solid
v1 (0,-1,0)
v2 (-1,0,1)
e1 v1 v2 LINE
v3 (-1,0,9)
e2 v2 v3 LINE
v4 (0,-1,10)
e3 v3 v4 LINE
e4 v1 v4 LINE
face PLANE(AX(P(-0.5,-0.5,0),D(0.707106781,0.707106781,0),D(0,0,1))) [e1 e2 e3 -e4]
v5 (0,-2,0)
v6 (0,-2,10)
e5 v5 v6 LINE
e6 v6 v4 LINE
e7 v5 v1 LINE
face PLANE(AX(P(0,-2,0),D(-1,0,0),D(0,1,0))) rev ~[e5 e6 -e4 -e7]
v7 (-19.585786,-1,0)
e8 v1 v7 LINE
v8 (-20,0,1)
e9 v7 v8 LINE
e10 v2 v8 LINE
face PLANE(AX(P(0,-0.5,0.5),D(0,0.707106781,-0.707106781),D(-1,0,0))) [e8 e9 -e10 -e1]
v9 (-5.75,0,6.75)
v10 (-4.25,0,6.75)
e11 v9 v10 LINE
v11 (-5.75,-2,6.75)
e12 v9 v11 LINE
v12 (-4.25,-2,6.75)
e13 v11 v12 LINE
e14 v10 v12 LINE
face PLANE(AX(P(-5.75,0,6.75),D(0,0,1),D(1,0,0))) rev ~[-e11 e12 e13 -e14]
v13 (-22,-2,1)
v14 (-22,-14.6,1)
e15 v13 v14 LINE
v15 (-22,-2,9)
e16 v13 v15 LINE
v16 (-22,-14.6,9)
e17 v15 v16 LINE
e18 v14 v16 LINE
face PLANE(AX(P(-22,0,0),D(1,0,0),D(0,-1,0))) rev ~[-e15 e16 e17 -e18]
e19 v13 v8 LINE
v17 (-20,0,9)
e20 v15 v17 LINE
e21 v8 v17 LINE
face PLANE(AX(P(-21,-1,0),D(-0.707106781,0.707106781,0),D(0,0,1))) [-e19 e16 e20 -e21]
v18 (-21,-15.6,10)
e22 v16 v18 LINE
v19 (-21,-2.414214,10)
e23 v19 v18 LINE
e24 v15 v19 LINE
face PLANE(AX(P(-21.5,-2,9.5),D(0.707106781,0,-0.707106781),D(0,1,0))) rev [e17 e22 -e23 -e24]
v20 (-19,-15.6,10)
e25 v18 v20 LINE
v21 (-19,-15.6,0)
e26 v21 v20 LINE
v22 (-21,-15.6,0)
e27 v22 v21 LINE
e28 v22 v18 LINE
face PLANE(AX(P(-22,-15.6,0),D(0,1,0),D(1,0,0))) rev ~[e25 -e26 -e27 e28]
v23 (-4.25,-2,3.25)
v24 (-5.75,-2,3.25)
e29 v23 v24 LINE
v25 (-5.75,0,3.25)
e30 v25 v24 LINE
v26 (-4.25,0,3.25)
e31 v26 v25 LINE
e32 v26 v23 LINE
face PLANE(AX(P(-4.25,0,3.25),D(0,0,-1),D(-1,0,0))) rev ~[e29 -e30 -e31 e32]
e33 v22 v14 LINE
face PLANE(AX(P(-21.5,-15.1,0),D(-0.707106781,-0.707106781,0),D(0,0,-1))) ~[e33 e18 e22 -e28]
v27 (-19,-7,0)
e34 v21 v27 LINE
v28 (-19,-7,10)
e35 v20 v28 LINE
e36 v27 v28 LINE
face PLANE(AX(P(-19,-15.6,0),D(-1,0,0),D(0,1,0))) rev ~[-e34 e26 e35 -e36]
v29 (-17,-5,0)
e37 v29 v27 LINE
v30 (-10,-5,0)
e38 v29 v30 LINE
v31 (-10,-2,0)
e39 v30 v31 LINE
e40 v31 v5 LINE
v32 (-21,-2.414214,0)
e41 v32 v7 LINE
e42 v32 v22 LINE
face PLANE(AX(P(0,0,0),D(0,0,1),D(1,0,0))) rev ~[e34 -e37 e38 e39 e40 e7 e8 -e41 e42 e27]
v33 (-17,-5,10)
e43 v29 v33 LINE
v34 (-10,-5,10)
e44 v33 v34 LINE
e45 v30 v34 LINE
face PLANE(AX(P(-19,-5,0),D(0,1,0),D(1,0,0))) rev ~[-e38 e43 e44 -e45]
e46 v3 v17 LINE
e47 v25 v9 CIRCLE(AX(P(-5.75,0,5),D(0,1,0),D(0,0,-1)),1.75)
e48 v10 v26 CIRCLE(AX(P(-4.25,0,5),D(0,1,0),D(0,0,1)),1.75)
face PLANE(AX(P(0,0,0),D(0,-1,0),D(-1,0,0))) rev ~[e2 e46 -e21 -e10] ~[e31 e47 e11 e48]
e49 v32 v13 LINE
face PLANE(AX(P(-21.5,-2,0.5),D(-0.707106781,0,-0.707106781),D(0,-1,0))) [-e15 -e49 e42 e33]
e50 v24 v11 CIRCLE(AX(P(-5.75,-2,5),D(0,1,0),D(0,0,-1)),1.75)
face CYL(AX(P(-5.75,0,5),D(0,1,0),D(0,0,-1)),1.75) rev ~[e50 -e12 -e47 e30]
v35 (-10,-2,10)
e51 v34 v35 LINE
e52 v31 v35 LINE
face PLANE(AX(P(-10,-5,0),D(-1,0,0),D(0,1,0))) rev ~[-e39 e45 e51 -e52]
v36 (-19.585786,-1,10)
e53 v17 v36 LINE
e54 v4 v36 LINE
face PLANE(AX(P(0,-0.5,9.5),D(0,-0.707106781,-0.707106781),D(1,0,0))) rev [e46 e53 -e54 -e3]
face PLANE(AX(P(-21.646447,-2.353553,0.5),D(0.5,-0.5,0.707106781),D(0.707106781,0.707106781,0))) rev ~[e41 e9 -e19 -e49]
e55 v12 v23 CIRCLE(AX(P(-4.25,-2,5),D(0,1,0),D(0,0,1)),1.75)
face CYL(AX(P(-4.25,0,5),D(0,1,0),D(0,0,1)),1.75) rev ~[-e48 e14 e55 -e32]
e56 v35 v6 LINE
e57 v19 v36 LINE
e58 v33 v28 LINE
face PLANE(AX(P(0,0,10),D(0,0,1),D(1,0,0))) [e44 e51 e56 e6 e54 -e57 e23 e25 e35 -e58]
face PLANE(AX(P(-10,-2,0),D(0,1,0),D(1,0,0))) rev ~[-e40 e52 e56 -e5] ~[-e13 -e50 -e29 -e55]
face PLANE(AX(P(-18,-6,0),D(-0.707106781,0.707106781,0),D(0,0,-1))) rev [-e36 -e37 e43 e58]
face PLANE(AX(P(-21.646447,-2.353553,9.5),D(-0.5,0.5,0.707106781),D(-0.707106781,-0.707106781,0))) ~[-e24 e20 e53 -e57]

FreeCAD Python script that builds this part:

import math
import FreeCAD as App
import Part
import Sketcher
from FreeCAD import Vector
Q = App.Units.Quantity


def edges_at(feature, points):
    """Names of the edges that pass closest to the given points."""
    edges = feature.Shape.Edges
    near = lambda p: min(range(len(edges)), key=lambda i: edges[i].distToShape(Part.Vertex(*p))[0])
    return sorted({f"Edge{near(p) + 1}" for p in points})


def add_polygon(sketch, points):
    """Adds a closed chain of lines whose ends are joined by coincident constraints."""
    first, n = sketch.GeometryCount, len(points)
    for a, b in zip(points, points[1:] + points[:1]):
        sketch.addGeometry(Part.LineSegment(App.Vector(*a, 0), App.Vector(*b, 0)), False)
    for i in range(n):
        sketch.addConstraint(Sketcher.Constraint("Coincident", first + i, 2, first + (i + 1) % n, 1))

doc = App.newDocument("Part")
body = doc.addObject("PartDesign::Body", "Body")

# Sketch on XY plane
sketch1 = doc.addObject("Sketcher::SketchObject", "Sketch")
body.addObject(sketch1)
sketch1.AttachmentSupport = (doc.XY_Plane, [""])
sketch1.MapMode = "FlatFace"
add_polygon(sketch1, [(0, -2), (0, 0), (-22, 0), (-22, -15.6), (-19, -15.6), (-19, -5), (-10, -5), (-10, -2)])  # lines 0-7
sketch1.addConstraint(Sketcher.Constraint("Vertical", 0))
sketch1.addConstraint(Sketcher.Constraint("Horizontal", 1))
sketch1.addConstraint(Sketcher.Constraint("Vertical", 2))
sketch1.addConstraint(Sketcher.Constraint("Horizontal", 3))
sketch1.addConstraint(Sketcher.Constraint("Vertical", 4))
sketch1.addConstraint(Sketcher.Constraint("Horizontal", 5))
sketch1.addConstraint(Sketcher.Constraint("Vertical", 6))
sketch1.addConstraint(Sketcher.Constraint("Horizontal", 7))
sketch1.addConstraint(Sketcher.Constraint("Coincident", 0, 2, -1, 1))
sketch1.addConstraint(Sketcher.Constraint("Equal", 3, 6))
sketch1.addConstraint(Sketcher.Constraint("DistanceX", 3, 1, 3, 2, Q("3 mm")))
sketch1.addConstraint(Sketcher.Constraint("DistanceX", 5, 1, 5, 2, Q("9 mm")))
sketch1.addConstraint(Sketcher.Constraint("DistanceX", 7, 1, 7, 2, Q("10 mm")))
sketch1.addConstraint(Sketcher.Constraint("DistanceY", 0, 1, 0, 2, Q("2 mm")))
sketch1.addConstraint(Sketcher.Constraint("DistanceY", 4, 1, 4, 2, Q("10.6 mm")))
pad1 = doc.addObject("PartDesign::Pad", "Pad")
body.addObject(pad1)
pad1.Profile = sketch1
pad1.Length = 10
doc.recompute()

chamfer = doc.addObject("PartDesign::Chamfer", "Chamfer")
body.addObject(chamfer)
chamfer.Base = (pad1, edges_at(pad1, [(-19, -5, 5)]))
chamfer.Size = 2

# Sketch on XZ plane
sketch2 = doc.addObject("Sketcher::SketchObject", "Sketch001")
body.addObject(sketch2)
sketch2.AttachmentSupport = (doc.XZ_Plane, [""])
sketch2.MapMode = "FlatFace"
sketch2.addGeometry(Part.ArcOfCircle(Part.Circle(Vector(-5.8, 5, 0), Vector(0, 0, 1), 1.8), math.radians(90), math.radians(270)), False)
sketch2.addGeometry(Part.LineSegment(Vector(-5.8, 6.8, 0), Vector(-4.2, 6.8, 0)), False)
sketch2.addGeometry(Part.ArcOfCircle(Part.Circle(Vector(-4.2, 5, 0), Vector(0, 0, 1), 1.8), math.radians(-90), math.radians(90)), False)
sketch2.addGeometry(Part.LineSegment(Vector(-4.2, 3.2, 0), Vector(-5.8, 3.2, 0)), False)
sketch2.addConstraint(Sketcher.Constraint("Tangent", 0, 1, 1, 1))
sketch2.addConstraint(Sketcher.Constraint("Tangent", 1, 2, 2, 2))
sketch2.addConstraint(Sketcher.Constraint("Tangent", 2, 1, 3, 1))
sketch2.addConstraint(Sketcher.Constraint("Tangent", 3, 2, 0, 2))
sketch2.addConstraint(Sketcher.Constraint("Horizontal", 1))
sketch2.addConstraint(Sketcher.Constraint("Horizontal", 3))
sketch2.addConstraint(Sketcher.Constraint("Radius", 0, Q("1.75 mm")))
sketch2.addConstraint(Sketcher.Constraint("DistanceX", 1, 1, 1, 2, Q("1.5 mm")))
sketch2.addConstraint(Sketcher.Constraint("DistanceY", -1, 1, 0, 3, Q("5 mm")))
sketch2.addConstraint(Sketcher.Constraint("DistanceX", 0, 3, -1, 1, Q("5.75 mm")))
pocket1 = doc.addObject("PartDesign::Pocket", "Pocket")
body.addObject(pocket1)
pocket1.Profile = sketch2
pocket1.Type = "ThroughAll"
pocket1.Reversed = True
doc.recompute()

chamfer2 = doc.addObject("PartDesign::Chamfer", "Chamfer001")
body.addObject(chamfer2)
chamfer2.Base = (pocket1, edges_at(pocket1, [(-22, 0, 5)]))
chamfer2.Size = 2
doc.recompute()

chamfer3 = doc.addObject("PartDesign::Chamfer", "Chamfer002")
body.addObject(chamfer3)
chamfer3.Base = (chamfer2, edges_at(chamfer2, [
    (-10, 0, 10),
    (-10, 0, 0),
    (0, 0, 5),
    (-21, -1, 10),
    (-22, -8.8, 10),
    (-21, -1, 0),
    (-22, -8.8, 0),
    (-22, -15.6, 5),
]))
chamfer3.Size = 1

doc.recompute()
